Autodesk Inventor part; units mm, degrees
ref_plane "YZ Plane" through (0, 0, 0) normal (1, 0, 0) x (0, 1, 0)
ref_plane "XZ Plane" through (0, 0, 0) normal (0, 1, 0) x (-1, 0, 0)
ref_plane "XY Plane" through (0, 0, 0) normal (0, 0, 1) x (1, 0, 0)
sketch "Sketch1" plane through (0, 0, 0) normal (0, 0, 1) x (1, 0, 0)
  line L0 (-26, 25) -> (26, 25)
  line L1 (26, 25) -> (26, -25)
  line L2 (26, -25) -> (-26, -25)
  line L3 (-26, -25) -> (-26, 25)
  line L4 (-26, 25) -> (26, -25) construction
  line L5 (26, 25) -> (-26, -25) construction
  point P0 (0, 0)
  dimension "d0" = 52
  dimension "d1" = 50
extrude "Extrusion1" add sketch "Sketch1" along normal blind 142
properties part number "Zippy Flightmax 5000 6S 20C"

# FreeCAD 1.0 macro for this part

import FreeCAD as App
import Part
import Sketcher
from FreeCAD import Vector

doc = App.newDocument("Part")
params = doc.addObject("Spreadsheet::Sheet", "Params")
for row, (alias, value) in enumerate([
    ("sketch1_width", "52 mm"),
    ("sketch1_height", "50 mm"),
    ("pad1_length", "142 mm"),
], start=1):
    params.set(f"A{row}", alias)
    params.set(f"B{row}", "=" + value)
    params.setAlias(f"B{row}", alias)

body = doc.addObject("PartDesign::Body", "Body")

# Sketch on XY plane
sketch1 = body.newObject("Sketcher::SketchObject", "Sketch")
sketch1.AttachmentSupport = (doc.getObject("XY_Plane"), [""])
sketch1.MapMode = "FlatFace"
sketch1.addGeometry([
    Part.LineSegment(Vector(26, 25, 0), Vector(-26, 25, 0)),
    Part.LineSegment(Vector(-26, 25, 0), Vector(-26, -25, 0)),
    Part.LineSegment(Vector(-26, -25, 0), Vector(26, -25, 0)),
    Part.LineSegment(Vector(26, -25, 0), Vector(26, 25, 0)),
], False)
sketch1.addConstraint([
    Sketcher.Constraint("Coincident", 0, 2, 1, 1),
    Sketcher.Constraint("Coincident", 1, 2, 2, 1),
    Sketcher.Constraint("Coincident", 2, 2, 3, 1),
    Sketcher.Constraint("Coincident", 3, 2, 0, 1),
    Sketcher.Constraint("Horizontal", 0),
    Sketcher.Constraint("Vertical", 1),
    Sketcher.Constraint("Horizontal", 2),
    Sketcher.Constraint("Vertical", 3),
    Sketcher.Constraint("Symmetric", 0, 2, 2, 2, -1, 1),
    Sketcher.Constraint("DistanceX", 0, 2, 0, 1, 52.0),
    Sketcher.Constraint("DistanceY", 1, 2, 1, 1, 50.0),
])
sketch1.setExpression("Constraints[9]", "Params.sketch1_width")
sketch1.setExpression("Constraints[10]", "Params.sketch1_height")
pad1 = body.newObject("PartDesign::Pad", "Pad")
pad1.Profile = sketch1
pad1.setExpression("Length", "Params.pad1_length")

doc.recompute()
